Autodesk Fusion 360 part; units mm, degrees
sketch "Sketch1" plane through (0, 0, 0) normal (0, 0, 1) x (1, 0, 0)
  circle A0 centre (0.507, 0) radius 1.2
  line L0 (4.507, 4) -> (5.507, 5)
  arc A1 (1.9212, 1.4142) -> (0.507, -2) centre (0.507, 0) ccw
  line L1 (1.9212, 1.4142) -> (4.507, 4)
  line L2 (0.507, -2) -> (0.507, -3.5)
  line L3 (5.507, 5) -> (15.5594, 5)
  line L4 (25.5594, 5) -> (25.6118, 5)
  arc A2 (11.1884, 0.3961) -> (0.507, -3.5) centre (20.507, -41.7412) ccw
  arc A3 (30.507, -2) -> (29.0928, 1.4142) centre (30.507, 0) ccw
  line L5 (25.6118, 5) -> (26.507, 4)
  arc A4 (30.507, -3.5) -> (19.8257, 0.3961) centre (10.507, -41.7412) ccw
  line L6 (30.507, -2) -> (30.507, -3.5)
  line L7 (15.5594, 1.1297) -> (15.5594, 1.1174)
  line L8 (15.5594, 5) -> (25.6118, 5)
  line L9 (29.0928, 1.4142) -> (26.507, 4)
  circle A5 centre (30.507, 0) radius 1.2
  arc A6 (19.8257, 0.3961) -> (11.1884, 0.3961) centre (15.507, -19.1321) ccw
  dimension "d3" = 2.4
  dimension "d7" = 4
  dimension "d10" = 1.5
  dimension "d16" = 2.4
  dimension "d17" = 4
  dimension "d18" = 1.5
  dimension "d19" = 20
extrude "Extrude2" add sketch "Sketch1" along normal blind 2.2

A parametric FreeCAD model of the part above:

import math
import FreeCAD as App
import Part
import Sketcher

V = App.Vector
Q = App.Units.Quantity

doc = App.newDocument("Part")
body = doc.addObject("PartDesign::Body", "Body")

sketch1 = body.newObject("Sketcher::SketchObject", "Sketch")
sketch1.AttachmentSupport = (doc.getObject("XY_Plane"), [""])
sketch1.MapMode = "FlatFace"
sketch1.addGeometry([
    Part.LineSegment(V(5.5, 5, 0), V(1.9, 1.4, 0)),
    Part.ArcOfCircle(Part.Circle(V(0.5, 0, 0), V(0, 0, 1), 2), math.radians(45), math.radians(270)),
    Part.LineSegment(V(0.5, -2, 0), V(0.5, -3.5, 0)),
    Part.ArcOfCircle(Part.Circle(V(20.5, -41.7, 0), V(0, 0, 1), 43.2), math.radians(102.47), math.radians(117.61)),
    Part.ArcOfCircle(Part.Circle(V(15.5, -19.1, 0), V(0, 0, 1), 20), math.radians(78), math.radians(102)),
    Part.ArcOfCircle(Part.Circle(V(10.5, -41.7, 0), V(0, 0, 1), 43.2), math.radians(62.39), math.radians(77.53)),
    Part.LineSegment(V(30.5, -3.5, 0), V(30.5, -2, 0)),
    Part.ArcOfCircle(Part.Circle(V(30.5, 0, 0), V(0, 0, 1), 2), math.radians(-90), math.radians(135)),
    Part.LineSegment(V(29.1, 1.4, 0), V(26.5, 4, 0)),
    Part.LineSegment(V(26.5, 4, 0), V(25.6, 5, 0)),
    Part.LineSegment(V(25.6, 5, 0), V(5.5, 5, 0)),
    Part.Circle(V(0.5, 0, 0), V(0, 0, 1), 1.2),
    Part.Circle(V(30.5, 0, 0), V(0, 0, 1), 1.2),
], False)
sketch1.addConstraint([
    Sketcher.Constraint("Coincident", 0, 2, 1, 1),
    Sketcher.Constraint("Coincident", 1, 2, 2, 1),
    Sketcher.Constraint("Coincident", 2, 2, 3, 2),
    Sketcher.Constraint("Tangent", 3, 1, 4, 2),
    Sketcher.Constraint("Tangent", 4, 1, 5, 2),
    Sketcher.Constraint("Coincident", 5, 1, 6, 1),
    Sketcher.Constraint("Coincident", 6, 2, 7, 1),
    Sketcher.Constraint("Coincident", 7, 2, 8, 1),
    Sketcher.Constraint("Coincident", 8, 2, 9, 1),
    Sketcher.Constraint("Coincident", 9, 2, 10, 1),
    Sketcher.Constraint("Coincident", 10, 2, 0, 1),
    Sketcher.Constraint("Vertical", 2),
    Sketcher.Constraint("Vertical", 6),
    Sketcher.Constraint("Horizontal", 10),
    Sketcher.Constraint("Coincident", 11, 3, 1, 3),
    Sketcher.Constraint("Coincident", 12, 3, 7, 3),
    Sketcher.Constraint("Equal", 3, 5),
    Sketcher.Constraint("Equal", 1, 7),
    Sketcher.Constraint("Equal", 11, 12),
    Sketcher.Constraint("PointOnObject", 1, 3, -1),
    Sketcher.Constraint("PointOnObject", 7, 3, -1),
    Sketcher.Constraint("Perpendicular", 0, 8),
    Sketcher.Constraint("Horizontal", 3, 3, 5, 3),
    Sketcher.Constraint("Horizontal", 2, 2, 5, 1),
    Sketcher.Constraint("Horizontal", 0, 2, 7, 2),
    Sketcher.Constraint("Vertical", 11, 3, 1, 2),
    Sketcher.Constraint("Vertical", 12, 3, 5, 1),
    Sketcher.Constraint("Radius", 1, Q("2 mm")),
    Sketcher.Constraint("Radius", 4, Q("20 mm")),
    Sketcher.Constraint("Diameter", 11, Q("2.4 mm")),
    Sketcher.Constraint("DistanceY", 2, 2, 2, 1, Q("1.5 mm")),
    Sketcher.Constraint("DistanceY", -1, 1, 8, 2, Q("4 mm")),
    Sketcher.Constraint("DistanceX", 1, 3, 3, 3, Q("20 mm")),
    Sketcher.Constraint("DistanceX", 8, 2, 7, 3, Q("4 mm")),
    Sketcher.Constraint("Angle", 0, Q("-135 deg")),
    Sketcher.Constraint("DistanceY", -1, 1, 9, 2, Q("5 mm")),
    Sketcher.Constraint("DistanceX", 4, 3, 3, 3, Q("5 mm")),
    Sketcher.Constraint("Radius", 3, Q("43.1554 mm")),
    Sketcher.Constraint("DistanceX", 10, 2, 10, 1, Q("20.1048 mm")),
    Sketcher.Constraint("DistanceX", -1, 1, 1, 3, Q("0.507 mm")),
])
pad1 = body.newObject("PartDesign::Pad", "Pad")
pad1.Profile = sketch1
pad1.Length = 2.2

doc.recompute()
